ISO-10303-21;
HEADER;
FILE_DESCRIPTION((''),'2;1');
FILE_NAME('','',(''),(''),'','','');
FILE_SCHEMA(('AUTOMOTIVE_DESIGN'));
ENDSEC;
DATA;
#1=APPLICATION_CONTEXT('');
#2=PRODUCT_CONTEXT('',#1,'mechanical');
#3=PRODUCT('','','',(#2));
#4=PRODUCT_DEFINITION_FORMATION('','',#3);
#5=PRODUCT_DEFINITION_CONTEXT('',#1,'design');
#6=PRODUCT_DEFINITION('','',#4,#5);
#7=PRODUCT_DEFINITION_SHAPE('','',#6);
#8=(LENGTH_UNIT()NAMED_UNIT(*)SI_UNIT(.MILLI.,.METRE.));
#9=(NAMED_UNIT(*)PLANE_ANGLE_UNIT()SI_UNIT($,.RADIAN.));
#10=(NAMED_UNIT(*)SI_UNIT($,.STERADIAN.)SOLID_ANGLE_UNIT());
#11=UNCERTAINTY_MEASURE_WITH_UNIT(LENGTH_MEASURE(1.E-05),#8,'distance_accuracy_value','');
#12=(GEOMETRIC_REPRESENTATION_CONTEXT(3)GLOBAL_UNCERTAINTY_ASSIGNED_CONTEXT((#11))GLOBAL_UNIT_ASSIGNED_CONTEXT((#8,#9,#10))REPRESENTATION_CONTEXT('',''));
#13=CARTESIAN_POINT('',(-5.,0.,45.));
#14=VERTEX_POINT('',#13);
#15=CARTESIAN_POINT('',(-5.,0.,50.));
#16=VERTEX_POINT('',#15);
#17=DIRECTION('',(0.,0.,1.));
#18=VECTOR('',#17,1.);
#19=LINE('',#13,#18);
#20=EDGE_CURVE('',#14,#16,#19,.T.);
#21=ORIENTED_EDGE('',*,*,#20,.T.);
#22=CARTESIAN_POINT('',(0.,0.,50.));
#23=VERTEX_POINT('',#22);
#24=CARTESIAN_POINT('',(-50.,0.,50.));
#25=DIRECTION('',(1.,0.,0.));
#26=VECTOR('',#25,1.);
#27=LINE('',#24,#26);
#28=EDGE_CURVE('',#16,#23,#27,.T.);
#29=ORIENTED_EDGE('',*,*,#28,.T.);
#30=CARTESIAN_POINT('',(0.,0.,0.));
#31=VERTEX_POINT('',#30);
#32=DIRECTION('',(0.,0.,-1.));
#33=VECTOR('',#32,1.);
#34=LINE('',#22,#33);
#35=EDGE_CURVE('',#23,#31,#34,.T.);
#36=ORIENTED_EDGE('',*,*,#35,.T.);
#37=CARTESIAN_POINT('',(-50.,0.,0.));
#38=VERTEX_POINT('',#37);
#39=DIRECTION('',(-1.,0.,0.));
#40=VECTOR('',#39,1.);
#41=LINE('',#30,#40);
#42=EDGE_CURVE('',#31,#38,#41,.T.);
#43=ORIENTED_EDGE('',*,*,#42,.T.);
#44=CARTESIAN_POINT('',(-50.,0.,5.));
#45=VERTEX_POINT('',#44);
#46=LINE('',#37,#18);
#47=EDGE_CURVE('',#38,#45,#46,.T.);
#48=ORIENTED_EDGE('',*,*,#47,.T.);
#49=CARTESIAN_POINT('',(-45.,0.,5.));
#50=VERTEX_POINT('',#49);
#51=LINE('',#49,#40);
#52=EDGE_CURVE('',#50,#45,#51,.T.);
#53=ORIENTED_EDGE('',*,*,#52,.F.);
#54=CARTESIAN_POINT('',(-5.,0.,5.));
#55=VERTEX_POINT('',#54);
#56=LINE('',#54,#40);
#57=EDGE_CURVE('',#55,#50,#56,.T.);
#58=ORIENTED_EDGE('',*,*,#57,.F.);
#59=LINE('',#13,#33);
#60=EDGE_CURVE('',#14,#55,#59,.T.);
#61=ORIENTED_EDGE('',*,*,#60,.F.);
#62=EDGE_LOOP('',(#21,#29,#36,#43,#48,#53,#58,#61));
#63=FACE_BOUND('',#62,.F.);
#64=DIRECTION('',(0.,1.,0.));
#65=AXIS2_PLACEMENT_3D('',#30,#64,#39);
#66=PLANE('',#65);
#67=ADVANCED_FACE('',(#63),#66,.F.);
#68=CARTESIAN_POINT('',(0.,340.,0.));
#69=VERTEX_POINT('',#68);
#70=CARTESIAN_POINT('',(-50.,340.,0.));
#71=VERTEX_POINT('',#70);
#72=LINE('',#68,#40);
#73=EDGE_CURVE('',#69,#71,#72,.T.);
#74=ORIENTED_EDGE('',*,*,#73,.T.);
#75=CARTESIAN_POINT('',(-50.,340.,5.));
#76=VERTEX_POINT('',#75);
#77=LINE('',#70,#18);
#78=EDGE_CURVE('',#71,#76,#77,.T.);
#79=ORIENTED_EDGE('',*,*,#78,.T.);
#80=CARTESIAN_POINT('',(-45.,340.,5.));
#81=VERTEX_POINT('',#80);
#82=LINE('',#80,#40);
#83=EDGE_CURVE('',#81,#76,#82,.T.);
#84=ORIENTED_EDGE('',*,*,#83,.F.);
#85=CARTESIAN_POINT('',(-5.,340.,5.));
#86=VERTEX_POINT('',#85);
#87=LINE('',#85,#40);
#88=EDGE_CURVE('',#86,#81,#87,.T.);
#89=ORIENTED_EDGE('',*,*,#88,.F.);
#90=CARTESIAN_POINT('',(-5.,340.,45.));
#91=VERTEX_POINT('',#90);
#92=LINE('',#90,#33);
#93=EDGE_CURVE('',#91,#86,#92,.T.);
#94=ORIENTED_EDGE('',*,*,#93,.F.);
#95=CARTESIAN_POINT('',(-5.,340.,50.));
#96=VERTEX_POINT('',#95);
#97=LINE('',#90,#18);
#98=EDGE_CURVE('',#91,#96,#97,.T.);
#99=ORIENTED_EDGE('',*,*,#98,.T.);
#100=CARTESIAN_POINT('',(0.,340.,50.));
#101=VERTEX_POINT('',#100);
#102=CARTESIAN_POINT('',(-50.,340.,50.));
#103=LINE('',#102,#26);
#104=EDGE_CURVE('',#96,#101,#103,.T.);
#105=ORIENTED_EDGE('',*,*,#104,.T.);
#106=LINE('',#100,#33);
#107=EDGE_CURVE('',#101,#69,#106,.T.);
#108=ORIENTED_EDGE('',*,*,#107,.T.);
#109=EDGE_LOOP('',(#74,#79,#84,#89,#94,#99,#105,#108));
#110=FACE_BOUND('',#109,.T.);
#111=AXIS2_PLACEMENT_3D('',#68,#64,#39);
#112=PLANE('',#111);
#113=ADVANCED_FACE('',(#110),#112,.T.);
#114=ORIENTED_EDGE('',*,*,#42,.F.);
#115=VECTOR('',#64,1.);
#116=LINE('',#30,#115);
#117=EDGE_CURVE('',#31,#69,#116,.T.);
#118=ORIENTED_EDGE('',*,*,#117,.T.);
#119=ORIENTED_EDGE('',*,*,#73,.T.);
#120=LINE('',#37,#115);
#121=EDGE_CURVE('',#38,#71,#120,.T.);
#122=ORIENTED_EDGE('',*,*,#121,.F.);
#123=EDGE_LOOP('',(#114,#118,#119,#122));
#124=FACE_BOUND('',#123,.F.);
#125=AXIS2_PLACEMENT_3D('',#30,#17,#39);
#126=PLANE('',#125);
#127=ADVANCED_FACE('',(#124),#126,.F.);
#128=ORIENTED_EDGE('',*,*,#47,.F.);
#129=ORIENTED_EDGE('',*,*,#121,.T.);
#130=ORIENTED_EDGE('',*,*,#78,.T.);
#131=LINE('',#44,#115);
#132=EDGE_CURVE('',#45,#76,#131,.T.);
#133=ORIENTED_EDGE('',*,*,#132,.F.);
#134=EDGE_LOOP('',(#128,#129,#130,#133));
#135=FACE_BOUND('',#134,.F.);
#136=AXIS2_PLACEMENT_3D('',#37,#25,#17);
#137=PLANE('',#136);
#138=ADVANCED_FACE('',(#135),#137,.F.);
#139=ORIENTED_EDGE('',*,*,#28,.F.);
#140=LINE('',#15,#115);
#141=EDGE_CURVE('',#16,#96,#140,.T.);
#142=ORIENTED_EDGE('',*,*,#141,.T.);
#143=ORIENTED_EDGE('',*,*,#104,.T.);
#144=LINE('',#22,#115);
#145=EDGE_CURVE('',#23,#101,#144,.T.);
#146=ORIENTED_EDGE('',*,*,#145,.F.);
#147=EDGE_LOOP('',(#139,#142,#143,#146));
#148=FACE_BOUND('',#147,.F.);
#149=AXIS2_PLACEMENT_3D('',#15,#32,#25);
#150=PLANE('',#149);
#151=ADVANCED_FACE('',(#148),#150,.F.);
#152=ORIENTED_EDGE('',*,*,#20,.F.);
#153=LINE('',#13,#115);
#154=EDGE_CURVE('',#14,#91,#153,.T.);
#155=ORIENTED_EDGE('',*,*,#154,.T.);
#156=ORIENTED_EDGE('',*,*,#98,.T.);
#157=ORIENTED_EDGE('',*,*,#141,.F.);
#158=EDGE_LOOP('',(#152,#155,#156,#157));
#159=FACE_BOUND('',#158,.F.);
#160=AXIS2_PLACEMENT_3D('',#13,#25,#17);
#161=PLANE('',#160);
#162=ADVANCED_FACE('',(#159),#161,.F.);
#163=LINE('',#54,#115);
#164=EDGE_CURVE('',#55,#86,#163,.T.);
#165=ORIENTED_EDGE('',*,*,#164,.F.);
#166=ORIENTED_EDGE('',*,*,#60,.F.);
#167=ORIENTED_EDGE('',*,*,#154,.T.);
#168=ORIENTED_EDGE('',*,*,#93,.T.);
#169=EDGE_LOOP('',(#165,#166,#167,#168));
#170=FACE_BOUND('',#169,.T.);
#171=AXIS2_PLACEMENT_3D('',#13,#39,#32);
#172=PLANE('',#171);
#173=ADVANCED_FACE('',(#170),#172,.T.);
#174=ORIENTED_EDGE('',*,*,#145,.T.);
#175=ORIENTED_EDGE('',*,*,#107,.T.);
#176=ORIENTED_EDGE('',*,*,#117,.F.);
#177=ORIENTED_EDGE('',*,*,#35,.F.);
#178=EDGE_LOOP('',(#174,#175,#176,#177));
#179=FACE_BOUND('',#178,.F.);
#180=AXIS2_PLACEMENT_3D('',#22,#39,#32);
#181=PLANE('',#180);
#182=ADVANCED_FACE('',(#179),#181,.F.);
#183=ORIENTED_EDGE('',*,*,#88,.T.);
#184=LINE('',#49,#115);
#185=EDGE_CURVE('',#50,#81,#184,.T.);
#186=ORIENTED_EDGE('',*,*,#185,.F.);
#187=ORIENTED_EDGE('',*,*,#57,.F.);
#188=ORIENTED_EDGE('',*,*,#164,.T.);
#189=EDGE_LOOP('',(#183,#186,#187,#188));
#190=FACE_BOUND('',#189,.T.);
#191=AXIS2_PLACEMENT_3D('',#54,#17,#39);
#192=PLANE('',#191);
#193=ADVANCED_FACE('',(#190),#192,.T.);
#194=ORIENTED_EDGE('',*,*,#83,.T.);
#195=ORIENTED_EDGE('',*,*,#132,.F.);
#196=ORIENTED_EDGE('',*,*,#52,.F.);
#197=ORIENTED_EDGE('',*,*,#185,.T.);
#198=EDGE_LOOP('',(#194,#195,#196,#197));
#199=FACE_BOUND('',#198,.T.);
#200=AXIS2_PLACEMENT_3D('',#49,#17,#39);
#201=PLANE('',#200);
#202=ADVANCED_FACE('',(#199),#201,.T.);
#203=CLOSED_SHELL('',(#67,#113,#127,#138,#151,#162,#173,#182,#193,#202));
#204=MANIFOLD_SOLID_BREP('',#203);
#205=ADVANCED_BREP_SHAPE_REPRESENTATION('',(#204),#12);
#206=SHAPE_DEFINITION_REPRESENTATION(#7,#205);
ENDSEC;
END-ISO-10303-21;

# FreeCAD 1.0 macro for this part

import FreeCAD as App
import Part
import Sketcher
from FreeCAD import Vector


def add_polygon(sketch, points):
    """Adds a closed chain of lines whose ends are joined by coincident constraints."""
    first, n = sketch.GeometryCount, len(points)
    for a, b in zip(points, points[1:] + points[:1]):
        sketch.addGeometry(Part.LineSegment(App.Vector(*a, 0), App.Vector(*b, 0)), False)
    for i in range(n):
        sketch.addConstraint(Sketcher.Constraint("Coincident", first + i, 2, first + (i + 1) % n, 1))

doc = App.newDocument("Part")
body = doc.addObject("PartDesign::Body", "Body")

# Sketch on XZ plane
sketch1 = doc.addObject("Sketcher::SketchObject", "Sketch")
body.addObject(sketch1)
sketch1.AttachmentSupport = (doc.XZ_Plane, [""])
sketch1.MapMode = "FlatFace"
add_polygon(sketch1, [(-5, 5), (-5, 50), (0, 50), (0, 0), (-50, 0), (-50, 5)])  # lines 0-5
sketch1.addConstraint(Sketcher.Constraint("Vertical", 0))
sketch1.addConstraint(Sketcher.Constraint("Horizontal", 1))
sketch1.addConstraint(Sketcher.Constraint("Vertical", 2))
sketch1.addConstraint(Sketcher.Constraint("Horizontal", 3))
sketch1.addConstraint(Sketcher.Constraint("Vertical", 4))
sketch1.addConstraint(Sketcher.Constraint("Horizontal", 5))
sketch1.addConstraint(Sketcher.Constraint("Coincident", 2, 2, -1, 1))
sketch1.addConstraint(Sketcher.Constraint("Equal", 5, 0))
sketch1.addConstraint(Sketcher.Constraint("Equal", 3, 2))
sketch1.addConstraint(Sketcher.Constraint("DistanceX", 1, 1, 1, 2, 5.0))
sketch1.addConstraint(Sketcher.Constraint("DistanceX", 3, 2, 3, 1, 50.0))
pad1 = doc.addObject("PartDesign::Pad", "Pad")
body.addObject(pad1)
pad1.Profile = sketch1
pad1.Length = 340
pad1.Reversed = True

doc.recompute()
